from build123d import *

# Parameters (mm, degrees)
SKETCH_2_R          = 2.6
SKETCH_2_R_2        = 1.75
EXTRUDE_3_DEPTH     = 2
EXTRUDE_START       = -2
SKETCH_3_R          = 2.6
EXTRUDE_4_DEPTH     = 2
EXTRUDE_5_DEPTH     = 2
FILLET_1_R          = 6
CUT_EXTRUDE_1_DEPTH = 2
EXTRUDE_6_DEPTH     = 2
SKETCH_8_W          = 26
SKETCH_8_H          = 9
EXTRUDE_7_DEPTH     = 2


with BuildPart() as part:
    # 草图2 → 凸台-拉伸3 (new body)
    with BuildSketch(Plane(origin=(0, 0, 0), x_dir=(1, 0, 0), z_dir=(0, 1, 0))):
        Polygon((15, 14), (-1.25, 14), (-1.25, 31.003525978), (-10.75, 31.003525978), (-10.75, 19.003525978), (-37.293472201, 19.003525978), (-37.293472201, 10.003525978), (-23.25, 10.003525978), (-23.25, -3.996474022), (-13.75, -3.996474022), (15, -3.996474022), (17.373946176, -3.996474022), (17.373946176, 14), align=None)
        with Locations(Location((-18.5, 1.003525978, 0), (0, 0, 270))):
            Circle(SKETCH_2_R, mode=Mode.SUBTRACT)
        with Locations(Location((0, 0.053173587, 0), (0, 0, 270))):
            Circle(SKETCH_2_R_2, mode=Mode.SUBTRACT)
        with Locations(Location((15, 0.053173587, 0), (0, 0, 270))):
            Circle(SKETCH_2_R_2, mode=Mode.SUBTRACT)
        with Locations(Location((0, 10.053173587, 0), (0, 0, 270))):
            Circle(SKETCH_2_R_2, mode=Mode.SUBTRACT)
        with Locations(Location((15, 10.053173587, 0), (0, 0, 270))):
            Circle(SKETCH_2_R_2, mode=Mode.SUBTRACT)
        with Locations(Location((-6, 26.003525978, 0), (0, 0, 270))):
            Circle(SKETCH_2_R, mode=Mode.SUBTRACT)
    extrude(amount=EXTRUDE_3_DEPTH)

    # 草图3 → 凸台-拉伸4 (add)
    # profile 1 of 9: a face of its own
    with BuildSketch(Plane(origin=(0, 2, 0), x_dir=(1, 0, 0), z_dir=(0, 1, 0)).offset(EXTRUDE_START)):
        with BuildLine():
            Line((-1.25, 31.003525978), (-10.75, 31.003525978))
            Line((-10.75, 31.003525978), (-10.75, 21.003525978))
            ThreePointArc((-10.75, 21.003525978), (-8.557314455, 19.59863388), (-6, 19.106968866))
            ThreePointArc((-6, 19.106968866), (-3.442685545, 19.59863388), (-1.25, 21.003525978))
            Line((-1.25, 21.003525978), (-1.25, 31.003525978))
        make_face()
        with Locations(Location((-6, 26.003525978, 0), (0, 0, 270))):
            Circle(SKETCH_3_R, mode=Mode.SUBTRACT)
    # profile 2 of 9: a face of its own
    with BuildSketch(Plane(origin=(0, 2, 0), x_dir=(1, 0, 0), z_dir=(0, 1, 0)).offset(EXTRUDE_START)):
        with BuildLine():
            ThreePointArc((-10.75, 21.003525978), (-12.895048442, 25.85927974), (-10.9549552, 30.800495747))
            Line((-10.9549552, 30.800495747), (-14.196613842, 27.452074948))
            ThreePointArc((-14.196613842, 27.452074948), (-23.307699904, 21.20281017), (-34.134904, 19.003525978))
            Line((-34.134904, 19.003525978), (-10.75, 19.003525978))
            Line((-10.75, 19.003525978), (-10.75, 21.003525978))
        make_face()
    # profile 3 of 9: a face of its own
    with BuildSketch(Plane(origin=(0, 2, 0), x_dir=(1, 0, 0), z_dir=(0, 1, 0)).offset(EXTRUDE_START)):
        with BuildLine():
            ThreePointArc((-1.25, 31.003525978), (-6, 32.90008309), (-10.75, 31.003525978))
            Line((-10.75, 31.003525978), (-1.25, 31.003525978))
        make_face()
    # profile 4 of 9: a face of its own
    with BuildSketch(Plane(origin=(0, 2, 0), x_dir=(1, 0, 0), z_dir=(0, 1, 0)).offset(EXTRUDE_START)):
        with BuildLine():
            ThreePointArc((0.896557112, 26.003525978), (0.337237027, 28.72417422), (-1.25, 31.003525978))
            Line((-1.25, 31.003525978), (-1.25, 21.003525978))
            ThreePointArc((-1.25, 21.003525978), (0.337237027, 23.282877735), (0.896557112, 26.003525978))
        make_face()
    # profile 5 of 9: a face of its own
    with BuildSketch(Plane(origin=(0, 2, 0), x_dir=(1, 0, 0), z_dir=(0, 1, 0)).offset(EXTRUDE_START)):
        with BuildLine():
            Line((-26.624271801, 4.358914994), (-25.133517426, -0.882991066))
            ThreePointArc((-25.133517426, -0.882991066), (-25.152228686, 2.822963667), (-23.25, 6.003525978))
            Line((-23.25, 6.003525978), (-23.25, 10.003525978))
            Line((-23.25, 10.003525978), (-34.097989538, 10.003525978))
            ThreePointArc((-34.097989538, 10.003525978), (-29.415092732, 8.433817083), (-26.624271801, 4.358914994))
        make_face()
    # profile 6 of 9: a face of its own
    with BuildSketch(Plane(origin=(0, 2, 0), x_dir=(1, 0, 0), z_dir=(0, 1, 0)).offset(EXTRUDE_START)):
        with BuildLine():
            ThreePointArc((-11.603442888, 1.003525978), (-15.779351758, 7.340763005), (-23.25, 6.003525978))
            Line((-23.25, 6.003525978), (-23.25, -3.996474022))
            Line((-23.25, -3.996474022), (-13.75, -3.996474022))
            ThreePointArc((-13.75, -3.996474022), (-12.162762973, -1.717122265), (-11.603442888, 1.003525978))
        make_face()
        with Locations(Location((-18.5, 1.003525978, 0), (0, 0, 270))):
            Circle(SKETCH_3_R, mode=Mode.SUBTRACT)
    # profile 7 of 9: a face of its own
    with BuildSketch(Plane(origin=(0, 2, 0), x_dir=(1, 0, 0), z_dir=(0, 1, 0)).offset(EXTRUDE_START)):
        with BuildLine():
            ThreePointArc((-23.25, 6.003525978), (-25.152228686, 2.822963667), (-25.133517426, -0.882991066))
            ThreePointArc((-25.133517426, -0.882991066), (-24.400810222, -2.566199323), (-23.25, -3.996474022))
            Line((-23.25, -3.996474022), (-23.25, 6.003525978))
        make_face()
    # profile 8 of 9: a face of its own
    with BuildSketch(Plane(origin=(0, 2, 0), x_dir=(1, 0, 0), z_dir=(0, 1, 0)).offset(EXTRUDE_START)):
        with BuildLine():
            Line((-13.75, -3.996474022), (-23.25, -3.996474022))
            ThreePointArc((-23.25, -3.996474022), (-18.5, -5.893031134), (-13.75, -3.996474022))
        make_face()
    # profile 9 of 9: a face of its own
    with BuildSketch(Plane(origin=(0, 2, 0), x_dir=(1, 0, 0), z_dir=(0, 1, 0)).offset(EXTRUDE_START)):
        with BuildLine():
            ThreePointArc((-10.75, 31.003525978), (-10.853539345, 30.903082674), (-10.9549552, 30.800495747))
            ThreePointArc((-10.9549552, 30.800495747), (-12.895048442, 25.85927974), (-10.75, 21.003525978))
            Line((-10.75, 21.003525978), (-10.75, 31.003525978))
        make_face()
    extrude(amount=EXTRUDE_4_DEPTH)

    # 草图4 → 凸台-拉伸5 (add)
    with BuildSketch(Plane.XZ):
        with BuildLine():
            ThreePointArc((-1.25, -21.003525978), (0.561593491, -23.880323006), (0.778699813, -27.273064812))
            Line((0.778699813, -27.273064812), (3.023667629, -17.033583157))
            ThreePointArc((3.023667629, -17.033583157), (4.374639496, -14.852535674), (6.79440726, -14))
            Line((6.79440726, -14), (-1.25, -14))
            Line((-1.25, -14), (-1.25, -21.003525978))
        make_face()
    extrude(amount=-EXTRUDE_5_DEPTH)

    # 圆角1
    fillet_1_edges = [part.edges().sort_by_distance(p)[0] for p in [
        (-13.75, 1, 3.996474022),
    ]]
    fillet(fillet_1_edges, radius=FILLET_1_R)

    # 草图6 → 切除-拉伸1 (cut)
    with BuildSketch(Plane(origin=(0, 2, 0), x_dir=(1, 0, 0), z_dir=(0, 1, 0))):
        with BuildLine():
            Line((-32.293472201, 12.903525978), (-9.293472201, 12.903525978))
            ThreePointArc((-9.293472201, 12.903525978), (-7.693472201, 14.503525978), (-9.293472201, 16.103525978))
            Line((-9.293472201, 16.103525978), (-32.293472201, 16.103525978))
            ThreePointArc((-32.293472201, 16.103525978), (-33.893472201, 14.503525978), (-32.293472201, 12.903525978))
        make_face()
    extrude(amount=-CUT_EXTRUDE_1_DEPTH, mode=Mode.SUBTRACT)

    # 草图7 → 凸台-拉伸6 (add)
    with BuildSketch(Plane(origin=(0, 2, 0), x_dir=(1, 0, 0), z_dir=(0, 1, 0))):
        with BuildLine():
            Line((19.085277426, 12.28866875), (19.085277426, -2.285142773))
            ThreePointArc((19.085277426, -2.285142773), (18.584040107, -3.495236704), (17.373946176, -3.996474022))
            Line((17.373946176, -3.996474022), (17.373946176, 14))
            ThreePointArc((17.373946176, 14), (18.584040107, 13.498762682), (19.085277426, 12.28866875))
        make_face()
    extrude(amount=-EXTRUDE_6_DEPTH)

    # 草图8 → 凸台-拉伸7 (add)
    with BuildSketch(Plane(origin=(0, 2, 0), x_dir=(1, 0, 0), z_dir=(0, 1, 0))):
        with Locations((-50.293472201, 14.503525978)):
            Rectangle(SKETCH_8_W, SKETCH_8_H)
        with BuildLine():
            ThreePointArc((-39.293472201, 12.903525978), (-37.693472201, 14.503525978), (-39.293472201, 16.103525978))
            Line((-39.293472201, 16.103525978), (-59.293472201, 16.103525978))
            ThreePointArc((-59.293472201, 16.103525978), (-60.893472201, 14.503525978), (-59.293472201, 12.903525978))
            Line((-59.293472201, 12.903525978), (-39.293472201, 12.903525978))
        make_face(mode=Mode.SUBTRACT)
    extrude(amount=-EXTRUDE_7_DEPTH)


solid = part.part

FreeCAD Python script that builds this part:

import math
import FreeCAD as App
import Part
import Sketcher


def edges_at(feature, points):
    """Names of the edges that pass closest to the given points."""
    edges = feature.Shape.Edges
    near = lambda p: min(range(len(edges)), key=lambda i: edges[i].distToShape(Part.Vertex(*p))[0])
    return sorted({f"Edge{near(p) + 1}" for p in points})

doc = App.newDocument("Part")
params = doc.addObject("Spreadsheet::Sheet", "Params")
for row, (alias, value) in enumerate([
    ("sketch1_diameter", "5.2 mm"),
    ("sketch1_diameter2", "3.5 mm"),
    ("sketch1_height", "12 mm"),
    ("sketch1_height2", "9 mm"),
    ("sketch1_height3", "14 mm"),
    ("pad1_length", "2 mm"),
    ("sketch2_diameter", "5.2 mm"),
    ("sketch2_height", "2 mm"),
    ("sketch2_height2", "4 mm"),
    ("sketch2_height3", "5 mm"),
    ("sketch2_height4", "5 mm"),
    ("pad2_length", "2 mm"),
    ("pad3_length", "2 mm"),
    ("fillet_radius", "6 mm"),
    ("sketch4_radius", "1.6 mm"),
    ("sketch4_width", "23 mm"),
    ("pocket1_length", "2 mm"),
    ("pad4_length", "2 mm"),
    ("sketch6_radius", "1.6 mm"),
    ("sketch6_width", "26 mm"),
    ("sketch6_width2", "20 mm"),
    ("sketch6_height", "9 mm"),
    ("pad5_length", "2 mm"),
], start=1):
    params.set(f"A{row}", alias)
    params.set(f"B{row}", "=" + value)
    params.setAlias(f"B{row}", alias)

body = doc.addObject("PartDesign::Body", "Body")

# Sketch on XZ plane
sketch1 = body.newObject("Sketcher::SketchObject", "Sketch")
sketch1.AttachmentSupport = (doc.getObject("XZ_Plane"), [""])
sketch1.MapMode = "FlatFace"
sketch1.addGeometry(Part.LineSegment(App.Vector(-1.25, -14, 0), App.Vector(-1.25, -31.003526, 0)), False)
sketch1.addGeometry(Part.LineSegment(App.Vector(-1.25, -31.003526, 0), App.Vector(-10.75, -31.003526, 0)), False)
sketch1.addGeometry(Part.LineSegment(App.Vector(-10.75, -31.003526, 0), App.Vector(-10.75, -19.003526, 0)), False)
sketch1.addGeometry(Part.LineSegment(App.Vector(-10.75, -19.003526, 0), App.Vector(-37.293472, -19.003526, 0)), False)
sketch1.addGeometry(Part.LineSegment(App.Vector(-37.293472, -19.003526, 0), App.Vector(-37.293472, -10.003526, 0)), False)
sketch1.addGeometry(Part.LineSegment(App.Vector(-37.293472, -10.003526, 0), App.Vector(-23.25, -10.003526, 0)), False)
sketch1.addGeometry(Part.LineSegment(App.Vector(-23.25, -10.003526, 0), App.Vector(-23.25, 3.996474, 0)), False)
sketch1.addGeometry(Part.LineSegment(App.Vector(-23.25, 3.996474, 0), App.Vector(17.373946, 3.996474, 0)), False)
sketch1.addGeometry(Part.LineSegment(App.Vector(17.373946, 3.996474, 0), App.Vector(17.373946, -14, 0)), False)
sketch1.addGeometry(Part.LineSegment(App.Vector(17.373946, -14, 0), App.Vector(-1.25, -14, 0)), False)
sketch1.addGeometry(Part.Circle(App.Vector(-18.5, -1.003526, 0), App.Vector(0, 0, 1), 2.6), False)
sketch1.addGeometry(Part.Circle(App.Vector(0, -0.053174, 0), App.Vector(0, 0, 1), 1.75), False)
sketch1.addGeometry(Part.Circle(App.Vector(15, -0.053174, 0), App.Vector(0, 0, 1), 1.75), False)
sketch1.addGeometry(Part.Circle(App.Vector(0, -10.053174, 0), App.Vector(0, 0, 1), 1.75), False)
sketch1.addGeometry(Part.Circle(App.Vector(15, -10.053174, 0), App.Vector(0, 0, 1), 1.75), False)
sketch1.addGeometry(Part.Circle(App.Vector(-6, -26.003526, 0), App.Vector(0, 0, 1), 2.6), False)
sketch1.addConstraint(Sketcher.Constraint("Coincident", 0, 2, 1, 1))
sketch1.addConstraint(Sketcher.Constraint("Coincident", 1, 2, 2, 1))
sketch1.addConstraint(Sketcher.Constraint("Coincident", 2, 2, 3, 1))
sketch1.addConstraint(Sketcher.Constraint("Coincident", 3, 2, 4, 1))
sketch1.addConstraint(Sketcher.Constraint("Coincident", 4, 2, 5, 1))
sketch1.addConstraint(Sketcher.Constraint("Coincident", 5, 2, 6, 1))
sketch1.addConstraint(Sketcher.Constraint("Coincident", 6, 2, 7, 1))
sketch1.addConstraint(Sketcher.Constraint("Coincident", 7, 2, 8, 1))
sketch1.addConstraint(Sketcher.Constraint("Coincident", 8, 2, 9, 1))
sketch1.addConstraint(Sketcher.Constraint("Coincident", 9, 2, 0, 1))
sketch1.addConstraint(Sketcher.Constraint("Vertical", 0))
sketch1.addConstraint(Sketcher.Constraint("Horizontal", 1))
sketch1.addConstraint(Sketcher.Constraint("Vertical", 2))
sketch1.addConstraint(Sketcher.Constraint("Horizontal", 3))
sketch1.addConstraint(Sketcher.Constraint("Vertical", 4))
sketch1.addConstraint(Sketcher.Constraint("Horizontal", 5))
sketch1.addConstraint(Sketcher.Constraint("Vertical", 6))
sketch1.addConstraint(Sketcher.Constraint("Horizontal", 7))
sketch1.addConstraint(Sketcher.Constraint("Vertical", 8))
sketch1.addConstraint(Sketcher.Constraint("Horizontal", 9))
sketch1.addConstraint(Sketcher.Constraint("Equal", 11, 12))
sketch1.addConstraint(Sketcher.Constraint("Equal", 12, 13))
sketch1.addConstraint(Sketcher.Constraint("Equal", 13, 14))
sketch1.addConstraint(Sketcher.Constraint("Equal", 10, 15))
sketch1.addConstraint(Sketcher.Constraint("PointOnObject", 11, 3, -2))
sketch1.addConstraint(Sketcher.Constraint("PointOnObject", 13, 3, -2))
sketch1.addConstraint(Sketcher.Constraint("Horizontal", 11, 3, 12, 3))
sketch1.addConstraint(Sketcher.Constraint("Horizontal", 13, 3, 14, 3))
sketch1.addConstraint(Sketcher.Constraint("Vertical", 12, 3, 14, 3))
sketch1.addConstraint(Sketcher.Constraint("Diameter", 10, 5.2))
sketch1.addConstraint(Sketcher.Constraint("Diameter", 11, 3.5))
sketch1.addConstraint(Sketcher.Constraint("DistanceY", 2, 1, 2, 2, 12.0))
sketch1.addConstraint(Sketcher.Constraint("DistanceY", 4, 1, 4, 2, 9.0))
sketch1.addConstraint(Sketcher.Constraint("DistanceY", 6, 1, 6, 2, 14.0))
sketch1.addConstraint(Sketcher.Constraint("DistanceX", 1, 2, 1, 1, 9.5))
sketch1.addConstraint(Sketcher.Constraint("DistanceX", -1, 1, 12, 3, 15.0))
sketch1.addConstraint(Sketcher.Constraint("DistanceX", 15, 3, -1, 1, 6.0))
sketch1.addConstraint(Sketcher.Constraint("DistanceY", 8, 2, -1, 1, 14.0))
sketch1.addConstraint(Sketcher.Constraint("DistanceY", 13, 3, 11, 3, 10.0))
sketch1.addConstraint(Sketcher.Constraint("DistanceY", 15, 3, 10, 3, 25.0))
sketch1.addConstraint(Sketcher.Constraint("DistanceY", 0, 2, 15, 3, 5.0))
sketch1.addConstraint(Sketcher.Constraint("DistanceX", 10, 3, -1, 1, 18.5))
sketch1.addConstraint(Sketcher.Constraint("DistanceX", 5, 2, 2, 2, 12.5))
sketch1.addConstraint(Sketcher.Constraint("DistanceX", 0, 2, -1, 1, 1.25))
sketch1.addConstraint(Sketcher.Constraint("DistanceX", 3, 2, 3, 1, 26.543472))
sketch1.addConstraint(Sketcher.Constraint("DistanceX", 7, 1, 7, 2, 40.623946))
sketch1.addConstraint(Sketcher.Constraint("DistanceY", 0, 2, 0, 1, 17.003526))
sketch1.addConstraint(Sketcher.Constraint("DistanceY", 11, 3, -1, 1, 0.053174))
sketch1.setExpression("Constraints[29]", "Params.sketch1_diameter")
sketch1.setExpression("Constraints[30]", "Params.sketch1_diameter2")
sketch1.setExpression("Constraints[31]", "Params.sketch1_height")
sketch1.setExpression("Constraints[32]", "Params.sketch1_height2")
sketch1.setExpression("Constraints[33]", "Params.sketch1_height3")
pad1 = body.newObject("PartDesign::Pad", "Pad")
pad1.Profile = sketch1
pad1.setExpression("Length", "Params.pad1_length")
pad1.Reversed = True

# Sketch on XZ plane
sketch2 = body.newObject("Sketcher::SketchObject", "Sketch001")
sketch2.AttachmentSupport = (doc.getObject("XZ_Plane"), [""])
sketch2.MapMode = "FlatFace"
sketch2.addGeometry(Part.ArcOfCircle(Part.Circle(App.Vector(-6, -26.003526, 0), App.Vector(0, 0, 1), 6.896557), math.radians(46.468801), math.radians(90)), False)
sketch2.addGeometry(Part.ArcOfCircle(Part.Circle(App.Vector(-6, -26.003526, 0), App.Vector(0, 0, 1), 6.896557), math.radians(0), math.radians(46.468801)), False)
sketch2.addGeometry(Part.ArcOfCircle(Part.Circle(App.Vector(-6, -26.003526, 0), App.Vector(0, 0, 1), 6.896557), math.radians(-46.468801), math.radians(0)), False)
sketch2.addGeometry(Part.ArcOfCircle(Part.Circle(App.Vector(-6, -26.003526, 0), App.Vector(0, 0, 1), 6.896557), math.radians(-133.531199), math.radians(-46.468801)), False)
sketch2.addGeometry(Part.ArcOfCircle(Part.Circle(App.Vector(-5.999998, -26.003524, 0), App.Vector(0, 0, 1), 6.89656), math.radians(-135.928135), math.radians(-133.5312)), False)
sketch2.addGeometry(Part.LineSegment(App.Vector(-10.954955, -30.800496, 0), App.Vector(-14.196614, -27.452075, 0)), False)
sketch2.addGeometry(Part.ArcOfCircle(Part.Circle(App.Vector(-34.134904, -46.754646, 0), App.Vector(0, 0, 1), 27.75112), math.radians(44.071865), math.radians(90)), False)
sketch2.addGeometry(Part.LineSegment(App.Vector(-34.134904, -19.003526, 0), App.Vector(-10.75, -19.003526, 0)), False)
sketch2.addGeometry(Part.LineSegment(App.Vector(-10.75, -19.003526, 0), App.Vector(-10.75, -21.003526, 0)), False)
sketch2.addGeometry(Part.ArcOfCircle(Part.Circle(App.Vector(-6, -26.003526, 0), App.Vector(0, 0, 1), 6.896557), math.radians(90), math.radians(133.531199)), False)
sketch2.addGeometry(Part.Circle(App.Vector(-6, -26.003526, 0), App.Vector(0, 0, 1), 2.6), False)
sketch2.addGeometry(Part.LineSegment(App.Vector(-26.624272, -4.358915, 0), App.Vector(-25.133517, 0.882991, 0)), False)
sketch2.addGeometry(Part.ArcOfCircle(Part.Circle(App.Vector(-18.5, -1.003526, 0), App.Vector(0, 0, 1), 6.896557), math.radians(133.531199), math.radians(164.12469)), False)
sketch2.addGeometry(Part.ArcOfCircle(Part.Circle(App.Vector(-18.5, -1.003526, 0), App.Vector(0, 0, 1), 6.896557), math.radians(46.468801), math.radians(133.531199)), False)
sketch2.addGeometry(Part.ArcOfCircle(Part.Circle(App.Vector(-18.5, -1.003526, 0), App.Vector(0, 0, 1), 6.896557), math.radians(0), math.radians(46.468801)), False)
sketch2.addGeometry(Part.ArcOfCircle(Part.Circle(App.Vector(-18.5, -1.003526, 0), App.Vector(0, 0, 1), 6.896557), math.radians(-133.531199), math.radians(0)), False)
sketch2.addGeometry(Part.LineSegment(App.Vector(-23.25, -6.003526, 0), App.Vector(-23.25, -10.003526, 0)), False)
sketch2.addGeometry(Part.LineSegment(App.Vector(-23.25, -10.003526, 0), App.Vector(-34.09799, -10.003526, 0)), False)
sketch2.addGeometry(Part.ArcOfCircle(Part.Circle(App.Vector(-34.09799, -2.233452, 0), App.Vector(0, 0, 1), 7.770074), math.radians(-90), math.radians(-15.87531)), False)
sketch2.addGeometry(Part.Circle(App.Vector(-18.5, -1.003526, 0), App.Vector(0, 0, 1), 2.6), False)
sketch2.addConstraint(Sketcher.Constraint("Tangent", 0, 1, 1, 2))
sketch2.addConstraint(Sketcher.Constraint("Tangent", 1, 1, 2, 2))
sketch2.addConstraint(Sketcher.Constraint("Tangent", 2, 1, 3, 2))
sketch2.addConstraint(Sketcher.Constraint("Tangent", 3, 1, 4, 2))
sketch2.addConstraint(Sketcher.Constraint("Tangent", 4, 1, 5, 1))
sketch2.addConstraint(Sketcher.Constraint("Tangent", 5, 2, 6, 1))
sketch2.addConstraint(Sketcher.Constraint("Tangent", 6, 2, 7, 1))
sketch2.addConstraint(Sketcher.Constraint("Coincident", 7, 2, 8, 1))
sketch2.addConstraint(Sketcher.Constraint("Coincident", 8, 2, 9, 2))
sketch2.addConstraint(Sketcher.Constraint("Tangent", 9, 1, 0, 2))
sketch2.addConstraint(Sketcher.Constraint("Tangent", 11, 2, 12, 2))
sketch2.addConstraint(Sketcher.Constraint("Tangent", 12, 1, 13, 2))
sketch2.addConstraint(Sketcher.Constraint("Tangent", 13, 1, 14, 2))
sketch2.addConstraint(Sketcher.Constraint("Tangent", 14, 1, 15, 2))
sketch2.addConstraint(Sketcher.Constraint("Coincident", 15, 1, 16, 1))
sketch2.addConstraint(Sketcher.Constraint("Coincident", 16, 2, 17, 1))
sketch2.addConstraint(Sketcher.Constraint("Tangent", 17, 2, 18, 1))
sketch2.addConstraint(Sketcher.Constraint("Tangent", 18, 2, 11, 1))
sketch2.addConstraint(Sketcher.Constraint("Horizontal", 7))
sketch2.addConstraint(Sketcher.Constraint("Vertical", 8))
sketch2.addConstraint(Sketcher.Constraint("Vertical", 16))
sketch2.addConstraint(Sketcher.Constraint("Horizontal", 17))
sketch2.addConstraint(Sketcher.Constraint("Coincident", 2, 3, 0, 3))
sketch2.addConstraint(Sketcher.Constraint("Coincident", 4, 3, 0, 3))
sketch2.addConstraint(Sketcher.Constraint("Coincident", 10, 3, 0, 3))
sketch2.addConstraint(Sketcher.Constraint("Coincident", 14, 3, 12, 3))
sketch2.addConstraint(Sketcher.Constraint("Coincident", 19, 3, 12, 3))
sketch2.addConstraint(Sketcher.Constraint("Equal", 3, 9))
sketch2.addConstraint(Sketcher.Constraint("Equal", 9, 12))
sketch2.addConstraint(Sketcher.Constraint("Equal", 14, 15))
sketch2.addConstraint(Sketcher.Constraint("Equal", 10, 19))
sketch2.addConstraint(Sketcher.Constraint("Horizontal", 10, 3, 1, 1))
sketch2.addConstraint(Sketcher.Constraint("Horizontal", 2, 1, 3, 1))
sketch2.addConstraint(Sketcher.Constraint("Horizontal", 0, 1, 8, 2))
sketch2.addConstraint(Sketcher.Constraint("Horizontal", 12, 1, 13, 1))
sketch2.addConstraint(Sketcher.Constraint("Horizontal", 19, 3, 14, 1))
sketch2.addConstraint(Sketcher.Constraint("Vertical", 0, 1, 2, 1))
sketch2.addConstraint(Sketcher.Constraint("Vertical", 10, 3, 9, 1))
sketch2.addConstraint(Sketcher.Constraint("Vertical", 12, 1, 15, 1))
sketch2.addConstraint(Sketcher.Constraint("Diameter", 10, 5.2))
sketch2.addConstraint(Sketcher.Constraint("DistanceY", 8, 2, 8, 1, 2.0))
sketch2.addConstraint(Sketcher.Constraint("DistanceY", 16, 2, 16, 1, 4.0))
sketch2.addConstraint(Sketcher.Constraint("DistanceX", 0, 3, -1, 1, 6.0))
sketch2.addConstraint(Sketcher.Constraint("DistanceY", 9, 3, 12, 3, 25.0))
sketch2.addConstraint(Sketcher.Constraint("DistanceY", 0, 3, 0, 1, 5.0))
sketch2.addConstraint(Sketcher.Constraint("DistanceY", 12, 3, 12, 1, 5.0))
sketch2.addConstraint(Sketcher.Constraint("DistanceX", 12, 3, -1, 1, 18.5))
sketch2.addConstraint(Sketcher.Constraint("DistanceX", 0, 1, -1, 1, 1.25))
sketch2.addConstraint(Sketcher.Constraint("Radius", 6, 27.75112))
sketch2.addConstraint(Sketcher.Constraint("Radius", 18, 7.770074))
sketch2.addConstraint(Sketcher.Constraint("Distance", 5, 4.660501))
sketch2.addConstraint(Sketcher.Constraint("DistanceX", 17, 2, 17, 1, 10.84799))
sketch2.addConstraint(Sketcher.Constraint("DistanceY", 18, 3, -1, 1, 2.233452))
sketch2.setExpression("Constraints[39]", "Params.sketch2_diameter")
sketch2.setExpression("Constraints[40]", "Params.sketch2_height")
sketch2.setExpression("Constraints[41]", "Params.sketch2_height2")
sketch2.setExpression("Constraints[44]", "Params.sketch2_height3")
sketch2.setExpression("Constraints[45]", "Params.sketch2_height4")
pad2 = body.newObject("PartDesign::Pad", "Pad001")
pad2.Profile = sketch2
pad2.setExpression("Length", "Params.pad2_length")
pad2.Reversed = True

# Sketch on XZ plane
sketch3 = body.newObject("Sketcher::SketchObject", "Sketch002")
sketch3.AttachmentSupport = (doc.getObject("XZ_Plane"), [""])
sketch3.MapMode = "FlatFace"
sketch3.addGeometry(Part.ArcOfCircle(Part.Circle(App.Vector(-6, -26.003526, 0), App.Vector(0, 0, 1), 6.896557), math.radians(-10.607673), math.radians(46.468801)), False)
sketch3.addGeometry(Part.LineSegment(App.Vector(0.7787, -27.273065, 0), App.Vector(3.023668, -17.033583, 0)), False)
sketch3.addGeometry(Part.ArcOfCircle(Part.Circle(App.Vector(6.794407, -17.860304, 0), App.Vector(0, 0, 1), 3.860304), math.radians(90), math.radians(167.633782)), False)
sketch3.addGeometry(Part.LineSegment(App.Vector(6.794407, -14, 0), App.Vector(-1.25, -14, 0)), False)
sketch3.addGeometry(Part.LineSegment(App.Vector(-1.25, -14, 0), App.Vector(-1.25, -21.003526, 0)), False)
sketch3.addConstraint(Sketcher.Constraint("Coincident", 0, 1, 1, 1))
sketch3.addConstraint(Sketcher.Constraint("Tangent", 1, 2, 2, 2))
sketch3.addConstraint(Sketcher.Constraint("Tangent", 2, 1, 3, 1))
sketch3.addConstraint(Sketcher.Constraint("Coincident", 3, 2, 4, 1))
sketch3.addConstraint(Sketcher.Constraint("Coincident", 4, 2, 0, 2))
sketch3.addConstraint(Sketcher.Constraint("Horizontal", 3))
sketch3.addConstraint(Sketcher.Constraint("Vertical", 4))
sketch3.addConstraint(Sketcher.Constraint("DistanceX", 0, 3, -1, 1, 6.0))
sketch3.addConstraint(Sketcher.Constraint("DistanceY", 2, 1, -1, 1, 14.0))
sketch3.addConstraint(Sketcher.Constraint("DistanceY", 0, 3, 4, 2, 5.0))
sketch3.addConstraint(Sketcher.Constraint("DistanceX", 3, 2, -1, 1, 1.25))
sketch3.addConstraint(Sketcher.Constraint("Radius", 2, 3.860304))
sketch3.addConstraint(Sketcher.Constraint("DistanceX", -1, 1, 0, 1, 0.7787))
sketch3.addConstraint(Sketcher.Constraint("DistanceX", 3, 2, 3, 1, 8.044407))
sketch3.addConstraint(Sketcher.Constraint("DistanceY", 4, 2, 4, 1, 7.003526))
pad3 = body.newObject("PartDesign::Pad", "Pad002")
pad3.Profile = sketch3
pad3.setExpression("Length", "Params.pad3_length")
pad3.Reversed = True
doc.recompute()

fillet = body.newObject("PartDesign::Fillet", "Fillet")
fillet.Base = (pad3, edges_at(pad3, [(-13.75, 1, 3.996)]))
fillet.setExpression("Radius", "Params.fillet_radius")

# Sketch on XZ plane
sketch4 = body.newObject("Sketcher::SketchObject", "Sketch003")
sketch4.AttachmentSupport = (doc.getObject("XZ_Plane"), [""])
sketch4.MapMode = "FlatFace"
sketch4.AttachmentOffset = App.Placement(App.Vector(0, 0, -2), App.Rotation())
sketch4.addGeometry(Part.LineSegment(App.Vector(-32.293472, -12.903526, 0), App.Vector(-9.293472, -12.903526, 0)), False)
sketch4.addGeometry(Part.ArcOfCircle(Part.Circle(App.Vector(-9.293472, -14.503526, 0), App.Vector(0, 0, 1), 1.6), math.radians(-90), math.radians(90)), False)
sketch4.addGeometry(Part.LineSegment(App.Vector(-9.293472, -16.103526, 0), App.Vector(-32.293472, -16.103526, 0)), False)
sketch4.addGeometry(Part.ArcOfCircle(Part.Circle(App.Vector(-32.293472, -14.503526, 0), App.Vector(0, 0, 1), 1.6), math.radians(90), math.radians(270)), False)
sketch4.addConstraint(Sketcher.Constraint("Tangent", 0, 2, 1, 2))
sketch4.addConstraint(Sketcher.Constraint("Tangent", 1, 1, 2, 1))
sketch4.addConstraint(Sketcher.Constraint("Tangent", 2, 2, 3, 2))
sketch4.addConstraint(Sketcher.Constraint("Tangent", 3, 1, 0, 1))
sketch4.addConstraint(Sketcher.Constraint("Horizontal", 0))
sketch4.addConstraint(Sketcher.Constraint("Horizontal", 2))
sketch4.addConstraint(Sketcher.Constraint("Radius", 1, 1.6))
sketch4.addConstraint(Sketcher.Constraint("DistanceX", 0, 1, 0, 2, 23.0))
sketch4.addConstraint(Sketcher.Constraint("DistanceX", 1, 3, -1, 1, 9.293472))
sketch4.addConstraint(Sketcher.Constraint("DistanceY", 1, 3, -1, 1, 14.503526))
sketch4.setExpression("Constraints[6]", "Params.sketch4_radius")
sketch4.setExpression("Constraints[7]", "Params.sketch4_width")
pocket1 = body.newObject("PartDesign::Pocket", "Pocket")
pocket1.Profile = sketch4
pocket1.setExpression("Length", "Params.pocket1_length")
pocket1.Reversed = True

# Sketch on XZ plane
sketch5 = body.newObject("Sketcher::SketchObject", "Sketch004")
sketch5.AttachmentSupport = (doc.getObject("XZ_Plane"), [""])
sketch5.MapMode = "FlatFace"
sketch5.AttachmentOffset = App.Placement(App.Vector(0, 0, -2), App.Rotation())
sketch5.addGeometry(Part.LineSegment(App.Vector(19.085277, 2.285143, 0), App.Vector(19.085277, -12.288669, 0)), False)
sketch5.addGeometry(Part.ArcOfCircle(Part.Circle(App.Vector(17.373946, -12.288669, 0), App.Vector(0, 0, 1), 1.711331), math.radians(-90), math.radians(0)), False)
sketch5.addGeometry(Part.LineSegment(App.Vector(17.373946, -14, 0), App.Vector(17.373946, 3.996474, 0)), False)
sketch5.addGeometry(Part.ArcOfCircle(Part.Circle(App.Vector(17.373946, 2.285143, 0), App.Vector(0, 0, 1), 1.711331), math.radians(0), math.radians(90)), False)
sketch5.addConstraint(Sketcher.Constraint("Tangent", 0, 2, 1, 2))
sketch5.addConstraint(Sketcher.Constraint("Coincident", 1, 1, 2, 1))
sketch5.addConstraint(Sketcher.Constraint("Coincident", 2, 2, 3, 2))
sketch5.addConstraint(Sketcher.Constraint("Tangent", 3, 1, 0, 1))
sketch5.addConstraint(Sketcher.Constraint("Vertical", 0))
sketch5.addConstraint(Sketcher.Constraint("Vertical", 2))
sketch5.addConstraint(Sketcher.Constraint("Equal", 1, 3))
sketch5.addConstraint(Sketcher.Constraint("Vertical", 3, 3, 1, 1))
sketch5.addConstraint(Sketcher.Constraint("DistanceY", 1, 1, -1, 1, 14.0))
sketch5.addConstraint(Sketcher.Constraint("Radius", 1, 1.711331))
sketch5.addConstraint(Sketcher.Constraint("DistanceY", 0, 2, 0, 1, 14.573812))
sketch5.addConstraint(Sketcher.Constraint("DistanceX", -1, 1, 1, 3, 17.373946))
pad4 = body.newObject("PartDesign::Pad", "Pad003")
pad4.Profile = sketch5
pad4.setExpression("Length", "Params.pad4_length")

# Sketch on XZ plane
sketch6 = body.newObject("Sketcher::SketchObject", "Sketch005")
sketch6.AttachmentSupport = (doc.getObject("XZ_Plane"), [""])
sketch6.MapMode = "FlatFace"
sketch6.AttachmentOffset = App.Placement(App.Vector(0, 0, -2), App.Rotation())
sketch6.addGeometry(Part.LineSegment(App.Vector(-63.293472, -19.003526, 0), App.Vector(-63.293472, -10.003526, 0)), False)
sketch6.addGeometry(Part.LineSegment(App.Vector(-63.293472, -10.003526, 0), App.Vector(-37.293472, -10.003526, 0)), False)
sketch6.addGeometry(Part.LineSegment(App.Vector(-37.293472, -10.003526, 0), App.Vector(-37.293472, -19.003526, 0)), False)
sketch6.addGeometry(Part.LineSegment(App.Vector(-37.293472, -19.003526, 0), App.Vector(-63.293472, -19.003526, 0)), False)
sketch6.addGeometry(Part.ArcOfCircle(Part.Circle(App.Vector(-39.293472, -14.503526, 0), App.Vector(0, 0, 1), 1.6), math.radians(-90), math.radians(90)), False)
sketch6.addGeometry(Part.LineSegment(App.Vector(-39.293472, -12.903526, 0), App.Vector(-59.293472, -12.903526, 0)), False)
sketch6.addGeometry(Part.ArcOfCircle(Part.Circle(App.Vector(-59.293472, -14.503526, 0), App.Vector(0, 0, 1), 1.6), math.radians(90), math.radians(270)), False)
sketch6.addGeometry(Part.LineSegment(App.Vector(-59.293472, -16.103526, 0), App.Vector(-39.293472, -16.103526, 0)), False)
sketch6.addConstraint(Sketcher.Constraint("Coincident", 0, 2, 1, 1))
sketch6.addConstraint(Sketcher.Constraint("Coincident", 1, 2, 2, 1))
sketch6.addConstraint(Sketcher.Constraint("Coincident", 2, 2, 3, 1))
sketch6.addConstraint(Sketcher.Constraint("Coincident", 3, 2, 0, 1))
sketch6.addConstraint(Sketcher.Constraint("Tangent", 4, 2, 5, 1))
sketch6.addConstraint(Sketcher.Constraint("Tangent", 5, 2, 6, 1))
sketch6.addConstraint(Sketcher.Constraint("Tangent", 6, 2, 7, 1))
sketch6.addConstraint(Sketcher.Constraint("Tangent", 7, 2, 4, 1))
sketch6.addConstraint(Sketcher.Constraint("Vertical", 0))
sketch6.addConstraint(Sketcher.Constraint("Horizontal", 1))
sketch6.addConstraint(Sketcher.Constraint("Vertical", 2))
sketch6.addConstraint(Sketcher.Constraint("Horizontal", 3))
sketch6.addConstraint(Sketcher.Constraint("Horizontal", 5))
sketch6.addConstraint(Sketcher.Constraint("Horizontal", 7))
sketch6.addConstraint(Sketcher.Constraint("Radius", 4, 1.6))
sketch6.addConstraint(Sketcher.Constraint("DistanceX", 1, 1, 1, 2, 26.0))
sketch6.addConstraint(Sketcher.Constraint("DistanceX", 5, 2, 5, 1, 20.0))
sketch6.addConstraint(Sketcher.Constraint("DistanceY", 0, 1, 0, 2, 9.0))
sketch6.addConstraint(Sketcher.Constraint("DistanceX", 0, 2, 6, 3, 4.0))
sketch6.addConstraint(Sketcher.Constraint("DistanceY", 6, 3, 0, 2, 4.5))
sketch6.addConstraint(Sketcher.Constraint("DistanceX", 4, 3, -1, 1, 39.293472))
sketch6.addConstraint(Sketcher.Constraint("DistanceY", 4, 3, -1, 1, 14.503526))
sketch6.setExpression("Constraints[14]", "Params.sketch6_radius")
sketch6.setExpression("Constraints[15]", "Params.sketch6_width")
sketch6.setExpression("Constraints[16]", "Params.sketch6_width2")
sketch6.setExpression("Constraints[17]", "Params.sketch6_height")
pad5 = body.newObject("PartDesign::Pad", "Pad004")
pad5.Profile = sketch6
pad5.setExpression("Length", "Params.pad5_length")

doc.recompute()
